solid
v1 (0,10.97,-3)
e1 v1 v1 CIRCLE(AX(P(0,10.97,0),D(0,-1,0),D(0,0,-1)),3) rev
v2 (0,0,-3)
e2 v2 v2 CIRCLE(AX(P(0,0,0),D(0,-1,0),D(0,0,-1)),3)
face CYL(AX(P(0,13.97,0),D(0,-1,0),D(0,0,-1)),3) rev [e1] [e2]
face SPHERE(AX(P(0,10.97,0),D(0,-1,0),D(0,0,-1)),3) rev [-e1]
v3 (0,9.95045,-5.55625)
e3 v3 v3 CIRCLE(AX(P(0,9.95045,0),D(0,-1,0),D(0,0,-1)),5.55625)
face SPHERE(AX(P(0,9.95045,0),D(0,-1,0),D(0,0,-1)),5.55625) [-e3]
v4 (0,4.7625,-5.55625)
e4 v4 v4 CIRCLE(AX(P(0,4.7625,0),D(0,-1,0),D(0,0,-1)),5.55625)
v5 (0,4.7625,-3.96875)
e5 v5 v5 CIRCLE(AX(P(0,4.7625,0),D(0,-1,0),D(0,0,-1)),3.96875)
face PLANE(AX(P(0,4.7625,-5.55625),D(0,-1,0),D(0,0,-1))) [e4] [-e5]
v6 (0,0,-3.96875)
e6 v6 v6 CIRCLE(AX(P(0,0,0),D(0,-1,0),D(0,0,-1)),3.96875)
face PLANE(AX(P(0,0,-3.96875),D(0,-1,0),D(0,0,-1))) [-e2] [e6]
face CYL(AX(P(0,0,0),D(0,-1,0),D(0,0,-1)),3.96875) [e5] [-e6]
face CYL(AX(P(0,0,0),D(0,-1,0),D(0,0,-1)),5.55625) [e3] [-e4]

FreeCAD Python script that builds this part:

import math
import FreeCAD as App
import Part
import Sketcher

V = App.Vector
Q = App.Units.Quantity


def edges_at(feature, points):
    """Names of the edges that pass closest to the given points."""
    edges = feature.Shape.Edges
    near = lambda p: min(range(len(edges)), key=lambda i: edges[i].distToShape(Part.Vertex(*p))[0])
    return sorted({f"Edge{near(p) + 1}" for p in points})

doc = App.newDocument("Part")
body = doc.addObject("PartDesign::Body", "Body")

sketch1 = body.newObject("Sketcher::SketchObject", "Sketch")
sketch1.AttachmentSupport = (doc.getObject("YZ_Plane"), [""])
sketch1.MapMode = "FlatFace"
sketch1.addGeometry([
    Part.LineSegment(V(15.5, 0, 0), V(0, 0, 0)),
    Part.LineSegment(V(0, 0, 0), V(0, -4, 0)),
    Part.LineSegment(V(0, -4, 0), V(4.8, -4, 0)),
    Part.LineSegment(V(4.8, -4, 0), V(4.8, -5.6, 0)),
    Part.LineSegment(V(4.8, -5.6, 0), V(10, -5.6, 0)),
    Part.ArcOfCircle(Part.Circle(V(10, 0, 0), V(0, 0, 1), 5.6), math.radians(-90), math.radians(0)),
], False)
sketch1.addConstraint([
    Sketcher.Constraint("Coincident", 0, 2, 1, 1),
    Sketcher.Constraint("Coincident", 1, 2, 2, 1),
    Sketcher.Constraint("Coincident", 2, 2, 3, 1),
    Sketcher.Constraint("Coincident", 3, 2, 4, 1),
    Sketcher.Constraint("Tangent", 4, 2, 5, 1),
    Sketcher.Constraint("Coincident", 5, 2, 0, 1),
    Sketcher.Constraint("Horizontal", 0),
    Sketcher.Constraint("Vertical", 1),
    Sketcher.Constraint("Horizontal", 2),
    Sketcher.Constraint("Vertical", 3),
    Sketcher.Constraint("Horizontal", 4),
    Sketcher.Constraint("Coincident", 0, 2, -1, 1),
    Sketcher.Constraint("PointOnObject", 5, 3, -1),
    Sketcher.Constraint("Radius", 5, Q("0.21875 in")),
    Sketcher.Constraint("DistanceX", 2, 1, 2, 2, Q("0.1875 in")),
    Sketcher.Constraint("DistanceY", 1, 2, 1, 1, Q("0.15625 in")),
    Sketcher.Constraint("DistanceX", 0, 2, 0, 1, Q("0.6105 in")),
])
revolution = body.newObject("PartDesign::Revolution", "Revolution")
revolution.Profile = sketch1
revolution.ReferenceAxis = (sketch1, ["H_Axis"])
revolution.Angle = 360

sketch2 = body.newObject("Sketcher::SketchObject", "Sketch001")
sketch2.AttachmentSupport = (doc.getObject("XZ_Plane"), [""])
sketch2.MapMode = "FlatFace"
sketch2.addGeometry(Part.Circle(V(0, 0, 0), V(0, 0, 1), 3), False)
sketch2.addConstraint([
    Sketcher.Constraint("Coincident", 0, 3, -1, 1),
    Sketcher.Constraint("Diameter", 0, Q("6 mm")),
])
pocket1 = body.newObject("PartDesign::Pocket", "Pocket")
pocket1.Profile = sketch2
pocket1.Length = Q("0.55 in")
doc.recompute()

fillet = body.newObject("PartDesign::Fillet", "Fillet")
fillet.Base = (pocket1, edges_at(pocket1, [(-3, 13.97, 0)]))
fillet.Radius = 3

doc.recompute()
